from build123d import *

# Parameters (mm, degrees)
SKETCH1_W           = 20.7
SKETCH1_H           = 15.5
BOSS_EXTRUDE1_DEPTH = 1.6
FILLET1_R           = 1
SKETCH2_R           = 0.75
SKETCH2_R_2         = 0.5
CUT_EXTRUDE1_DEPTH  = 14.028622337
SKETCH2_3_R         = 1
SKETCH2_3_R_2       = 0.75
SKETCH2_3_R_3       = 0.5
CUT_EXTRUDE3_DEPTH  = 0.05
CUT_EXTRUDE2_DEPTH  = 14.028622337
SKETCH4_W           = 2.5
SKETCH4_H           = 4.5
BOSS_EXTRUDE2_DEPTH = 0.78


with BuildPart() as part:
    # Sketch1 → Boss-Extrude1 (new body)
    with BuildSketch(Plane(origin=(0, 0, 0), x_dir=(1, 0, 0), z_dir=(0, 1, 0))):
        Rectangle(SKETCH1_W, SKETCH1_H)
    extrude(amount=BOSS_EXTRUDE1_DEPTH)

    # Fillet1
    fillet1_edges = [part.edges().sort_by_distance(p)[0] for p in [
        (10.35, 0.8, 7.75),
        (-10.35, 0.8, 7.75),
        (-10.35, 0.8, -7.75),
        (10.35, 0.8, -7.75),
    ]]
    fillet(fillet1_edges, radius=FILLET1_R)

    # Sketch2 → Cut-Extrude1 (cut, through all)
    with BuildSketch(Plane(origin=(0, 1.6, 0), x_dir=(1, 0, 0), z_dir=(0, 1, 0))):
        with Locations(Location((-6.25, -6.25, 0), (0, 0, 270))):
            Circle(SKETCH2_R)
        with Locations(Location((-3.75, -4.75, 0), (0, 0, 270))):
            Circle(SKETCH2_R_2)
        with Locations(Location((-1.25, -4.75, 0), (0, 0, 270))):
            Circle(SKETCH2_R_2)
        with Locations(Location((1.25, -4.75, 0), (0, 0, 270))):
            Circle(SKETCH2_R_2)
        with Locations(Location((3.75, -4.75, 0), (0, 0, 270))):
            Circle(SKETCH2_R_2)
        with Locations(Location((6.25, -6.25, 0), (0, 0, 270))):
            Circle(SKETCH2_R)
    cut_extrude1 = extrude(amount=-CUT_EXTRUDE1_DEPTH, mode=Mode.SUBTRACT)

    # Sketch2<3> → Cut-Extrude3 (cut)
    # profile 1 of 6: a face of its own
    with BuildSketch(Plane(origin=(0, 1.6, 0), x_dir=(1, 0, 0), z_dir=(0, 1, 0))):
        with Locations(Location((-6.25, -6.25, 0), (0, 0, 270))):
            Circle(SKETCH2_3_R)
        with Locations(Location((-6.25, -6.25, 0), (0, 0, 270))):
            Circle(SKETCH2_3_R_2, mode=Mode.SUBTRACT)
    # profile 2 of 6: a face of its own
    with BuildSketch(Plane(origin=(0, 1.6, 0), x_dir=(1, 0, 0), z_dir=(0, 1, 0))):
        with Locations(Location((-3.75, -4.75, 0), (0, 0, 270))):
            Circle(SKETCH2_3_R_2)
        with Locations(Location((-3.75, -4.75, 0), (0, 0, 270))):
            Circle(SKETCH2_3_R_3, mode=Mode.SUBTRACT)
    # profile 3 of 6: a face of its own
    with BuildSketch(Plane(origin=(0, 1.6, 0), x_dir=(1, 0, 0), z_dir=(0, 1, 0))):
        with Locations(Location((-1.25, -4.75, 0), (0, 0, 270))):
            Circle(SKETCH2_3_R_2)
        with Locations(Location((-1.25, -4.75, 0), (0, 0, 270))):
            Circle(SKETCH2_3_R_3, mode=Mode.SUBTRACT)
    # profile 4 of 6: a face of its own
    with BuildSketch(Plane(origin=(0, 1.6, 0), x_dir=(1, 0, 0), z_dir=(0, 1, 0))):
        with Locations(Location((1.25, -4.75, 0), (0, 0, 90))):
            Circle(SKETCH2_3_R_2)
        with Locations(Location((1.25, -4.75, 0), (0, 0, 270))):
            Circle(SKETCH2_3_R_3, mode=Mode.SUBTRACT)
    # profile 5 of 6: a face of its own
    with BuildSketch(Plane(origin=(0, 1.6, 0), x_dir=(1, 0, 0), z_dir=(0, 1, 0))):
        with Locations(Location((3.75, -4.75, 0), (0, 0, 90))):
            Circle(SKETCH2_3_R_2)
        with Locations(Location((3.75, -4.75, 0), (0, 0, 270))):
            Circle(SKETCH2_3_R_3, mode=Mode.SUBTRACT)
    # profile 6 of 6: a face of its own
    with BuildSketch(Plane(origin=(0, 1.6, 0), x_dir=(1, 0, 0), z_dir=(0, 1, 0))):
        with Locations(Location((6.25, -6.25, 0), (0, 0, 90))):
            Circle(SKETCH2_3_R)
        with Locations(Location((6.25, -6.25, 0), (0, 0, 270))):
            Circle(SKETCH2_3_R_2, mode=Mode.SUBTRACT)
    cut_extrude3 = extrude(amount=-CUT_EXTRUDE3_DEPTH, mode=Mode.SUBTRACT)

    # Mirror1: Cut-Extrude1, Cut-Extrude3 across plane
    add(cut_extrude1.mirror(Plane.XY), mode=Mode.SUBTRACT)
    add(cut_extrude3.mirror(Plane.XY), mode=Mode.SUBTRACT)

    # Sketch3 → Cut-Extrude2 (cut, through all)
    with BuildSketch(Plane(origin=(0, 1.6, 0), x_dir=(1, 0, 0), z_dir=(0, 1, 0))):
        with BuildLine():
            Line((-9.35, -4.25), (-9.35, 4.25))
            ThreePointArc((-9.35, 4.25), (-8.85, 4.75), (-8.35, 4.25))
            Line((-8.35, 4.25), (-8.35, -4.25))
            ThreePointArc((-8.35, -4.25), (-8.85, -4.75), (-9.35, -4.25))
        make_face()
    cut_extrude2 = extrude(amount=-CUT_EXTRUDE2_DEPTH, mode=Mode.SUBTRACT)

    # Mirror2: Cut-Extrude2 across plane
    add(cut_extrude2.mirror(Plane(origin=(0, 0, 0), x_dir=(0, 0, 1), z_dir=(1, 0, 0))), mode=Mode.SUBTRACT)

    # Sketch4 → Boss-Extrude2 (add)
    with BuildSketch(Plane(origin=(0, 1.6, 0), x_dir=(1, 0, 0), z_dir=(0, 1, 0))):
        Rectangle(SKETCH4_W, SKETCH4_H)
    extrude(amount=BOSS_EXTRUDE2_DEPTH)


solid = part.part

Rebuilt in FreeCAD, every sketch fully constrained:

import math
import FreeCAD as App
import Part
import Sketcher


def edges_at(feature, points):
    """Names of the edges that pass closest to the given points."""
    edges = feature.Shape.Edges
    near = lambda p: min(range(len(edges)), key=lambda i: edges[i].distToShape(Part.Vertex(*p))[0])
    return sorted({f"Edge{near(p) + 1}" for p in points})


def add_polygon(sketch, points):
    """Adds a closed chain of lines whose ends are joined by coincident constraints."""
    first, n = sketch.GeometryCount, len(points)
    for a, b in zip(points, points[1:] + points[:1]):
        sketch.addGeometry(Part.LineSegment(App.Vector(*a, 0), App.Vector(*b, 0)), False)
    for i in range(n):
        sketch.addConstraint(Sketcher.Constraint("Coincident", first + i, 2, first + (i + 1) % n, 1))

doc = App.newDocument("Part")
body = doc.addObject("PartDesign::Body", "Body")

# Sketch on XZ plane
sketch1 = body.newObject("Sketcher::SketchObject", "Sketch")
sketch1.AttachmentSupport = (doc.getObject("XZ_Plane"), [""])
sketch1.MapMode = "FlatFace"
add_polygon(sketch1, [(-10, -8), (-10, 8), (10, 8), (10, -8)])  # lines 0-3
sketch1.addConstraint([
    Sketcher.Constraint("Vertical", 0),
    Sketcher.Constraint("Horizontal", 1),
    Sketcher.Constraint("Vertical", 2),
    Sketcher.Constraint("Horizontal", 3),
    Sketcher.Constraint("Symmetric", 0, 2, 2, 2, -1, 1),
    Sketcher.Constraint("DistanceX", 1, 1, 1, 2, 20.7),
    Sketcher.Constraint("DistanceY", 0, 1, 0, 2, 15.5),
])
pad1 = body.newObject("PartDesign::Pad", "Pad")
pad1.Profile = sketch1
pad1.Length = 1.6
pad1.Reversed = True
doc.recompute()

fillet = body.newObject("PartDesign::Fillet", "Fillet")
fillet.Base = (pad1, edges_at(pad1, [
    (10.35, 0.8, 7.75),
    (-10.35, 0.8, 7.75),
    (-10.35, 0.8, -7.75),
    (10.35, 0.8, -7.75),
]))
fillet.Radius = 1

# Sketch on XZ plane
sketch2 = body.newObject("Sketcher::SketchObject", "Sketch001")
sketch2.AttachmentSupport = (doc.getObject("XZ_Plane"), [""])
sketch2.MapMode = "FlatFace"
sketch2.AttachmentOffset = App.Placement(App.Vector(0, 0, -1.6), App.Rotation())
sketch2.addGeometry([
    Part.Circle(App.Vector(-6.2, 6.2, 0), App.Vector(0, 0, 1), 0.8),  # 0
    Part.Circle(App.Vector(-3.8, 4.8, 0), App.Vector(0, 0, 1), 0.5),  # 1
    Part.Circle(App.Vector(-1.2, 4.8, 0), App.Vector(0, 0, 1), 0.5),  # 2
    Part.Circle(App.Vector(1.2, 4.8, 0), App.Vector(0, 0, 1), 0.5),  # 3
    Part.Circle(App.Vector(3.8, 4.8, 0), App.Vector(0, 0, 1), 0.5),  # 4
    Part.Circle(App.Vector(6.2, 6.2, 0), App.Vector(0, 0, 1), 0.8),  # 5
], False)
sketch2.addConstraint([
    Sketcher.Constraint("Equal", 1, 2),
    Sketcher.Constraint("Equal", 2, 3),
    Sketcher.Constraint("Equal", 3, 4),
    Sketcher.Constraint("Equal", 0, 5),
    Sketcher.Constraint("Symmetric", 2, 3, 3, 3, -2),
    Sketcher.Constraint("Symmetric", 1, 3, 4, 3, -2),
    Sketcher.Constraint("Symmetric", 0, 3, 5, 3, -2),
    Sketcher.Constraint("Horizontal", 1, 3, 2, 3),
    Sketcher.Constraint("Diameter", 1, 1.0),
    Sketcher.Constraint("Diameter", 0, 1.5),
    Sketcher.Constraint("DistanceX", 0, 3, 2, 3, 5.0),
    Sketcher.Constraint("DistanceX", 1, 3, 3, 3, 5.0),
    Sketcher.Constraint("DistanceX", 0, 3, 1, 3, 2.5),
    Sketcher.Constraint("DistanceY", 1, 3, 0, 3, 1.5),
    Sketcher.Constraint("DistanceY", -1, 1, 0, 3, 6.25),
])
pocket1 = body.newObject("PartDesign::Pocket", "Pocket")
pocket1.Profile = sketch2
pocket1.Type = "ThroughAll"
pocket1.Reversed = True

# Sketch on XZ plane
sketch3 = body.newObject("Sketcher::SketchObject", "Sketch002")
sketch3.AttachmentSupport = (doc.getObject("XZ_Plane"), [""])
sketch3.MapMode = "FlatFace"
sketch3.AttachmentOffset = App.Placement(App.Vector(0, 0, -1.6), App.Rotation())
sketch3.addGeometry([
    Part.Circle(App.Vector(-6.2, 6.2, 0), App.Vector(0, 0, 1), 1),  # 0
    Part.Circle(App.Vector(-6.2, 6.2, 0), App.Vector(0, 0, 1), 0.8),  # 1
    Part.Circle(App.Vector(-3.8, 4.8, 0), App.Vector(0, 0, 1), 0.8),  # 2
    Part.Circle(App.Vector(-3.8, 4.8, 0), App.Vector(0, 0, 1), 0.5),  # 3
    Part.Circle(App.Vector(-1.2, 4.8, 0), App.Vector(0, 0, 1), 0.8),  # 4
    Part.Circle(App.Vector(-1.2, 4.8, 0), App.Vector(0, 0, 1), 0.5),  # 5
    Part.Circle(App.Vector(1.2, 4.8, 0), App.Vector(0, 0, 1), 0.8),  # 6
    Part.Circle(App.Vector(1.2, 4.8, 0), App.Vector(0, 0, 1), 0.5),  # 7
    Part.Circle(App.Vector(3.8, 4.8, 0), App.Vector(0, 0, 1), 0.8),  # 8
    Part.Circle(App.Vector(3.8, 4.8, 0), App.Vector(0, 0, 1), 0.5),  # 9
    Part.Circle(App.Vector(6.2, 6.2, 0), App.Vector(0, 0, 1), 1),  # 10
    Part.Circle(App.Vector(6.2, 6.2, 0), App.Vector(0, 0, 1), 0.8),  # 11
], False)
sketch3.addConstraint([
    Sketcher.Constraint("Coincident", 1, 3, 0, 3),
    Sketcher.Constraint("Coincident", 3, 3, 2, 3),
    Sketcher.Constraint("Coincident", 5, 3, 4, 3),
    Sketcher.Constraint("Coincident", 7, 3, 6, 3),
    Sketcher.Constraint("Coincident", 9, 3, 8, 3),
    Sketcher.Constraint("Coincident", 11, 3, 10, 3),
    Sketcher.Constraint("Equal", 1, 2),
    Sketcher.Constraint("Equal", 2, 4),
    Sketcher.Constraint("Equal", 3, 5),
    Sketcher.Constraint("Equal", 4, 6),
    Sketcher.Constraint("Equal", 5, 7),
    Sketcher.Constraint("Equal", 6, 8),
    Sketcher.Constraint("Equal", 7, 9),
    Sketcher.Constraint("Equal", 0, 10),
    Sketcher.Constraint("Equal", 8, 11),
    Sketcher.Constraint("Symmetric", 4, 3, 6, 3, -2),
    Sketcher.Constraint("Symmetric", 2, 3, 8, 3, -2),
    Sketcher.Constraint("Symmetric", 0, 3, 10, 3, -2),
    Sketcher.Constraint("Horizontal", 3, 3, 4, 3),
    Sketcher.Constraint("Diameter", 0, 2.0),
    Sketcher.Constraint("Diameter", 3, 1.0),
    Sketcher.Constraint("Diameter", 1, 1.5),
    Sketcher.Constraint("DistanceX", 0, 3, 4, 3, 5.0),
    Sketcher.Constraint("DistanceX", 2, 3, 6, 3, 5.0),
    Sketcher.Constraint("DistanceX", 0, 3, 2, 3, 2.5),
    Sketcher.Constraint("DistanceY", 2, 3, 0, 3, 1.5),
    Sketcher.Constraint("DistanceY", -1, 1, 0, 3, 6.25),
])
pocket2 = body.newObject("PartDesign::Pocket", "Pocket001")
pocket2.Profile = sketch3
pocket2.Length = 0.05
pocket2.Reversed = True
doc.recompute()

mirrored = body.newObject("PartDesign::Mirrored", "Mirrored")
mirrored.Originals = [pocket1, pocket2]
mirrored.MirrorPlane = (doc.getObject("XY_Plane"), [""])
body.Tip = mirrored

# Sketch on XZ plane
sketch4 = body.newObject("Sketcher::SketchObject", "Sketch003")
sketch4.AttachmentSupport = (doc.getObject("XZ_Plane"), [""])
sketch4.MapMode = "FlatFace"
sketch4.AttachmentOffset = App.Placement(App.Vector(0, 0, -1.6), App.Rotation())
sketch4.addGeometry([
    Part.LineSegment(App.Vector(-9.3, -4.2, 0), App.Vector(-9.3, 4.2, 0)),
    Part.ArcOfCircle(Part.Circle(App.Vector(-8.8, 4.2, 0), App.Vector(0, 0, 1), 0.5), math.radians(0), math.radians(180)),
    Part.LineSegment(App.Vector(-8.3, 4.2, 0), App.Vector(-8.3, -4.2, 0)),
    Part.ArcOfCircle(Part.Circle(App.Vector(-8.8, -4.2, 0), App.Vector(0, 0, 1), 0.5), math.radians(180), math.radians(360)),
], False)
sketch4.addConstraint([
    Sketcher.Constraint("Tangent", 0, 2, 1, 2),
    Sketcher.Constraint("Tangent", 1, 1, 2, 1),
    Sketcher.Constraint("Tangent", 2, 2, 3, 2),
    Sketcher.Constraint("Tangent", 3, 1, 0, 1),
    Sketcher.Constraint("Vertical", 0),
    Sketcher.Constraint("Vertical", 2),
    Sketcher.Constraint("Radius", 1, 0.5),
    Sketcher.Constraint("DistanceY", 0, 1, 0, 2, 8.5),
    Sketcher.Constraint("DistanceX", 1, 3, -1, 1, 8.85),
    Sketcher.Constraint("DistanceY", -1, 1, 1, 3, 4.25),
])
pocket3 = body.newObject("PartDesign::Pocket", "Pocket002")
pocket3.Profile = sketch4
pocket3.Type = "ThroughAll"
pocket3.Reversed = True
doc.recompute()

mirrored2 = body.newObject("PartDesign::Mirrored", "Mirrored001")
mirrored2.Originals = [pocket3]
mirrored2.MirrorPlane = (doc.getObject("YZ_Plane"), [""])
body.Tip = mirrored2

# Sketch on XZ plane
sketch5 = body.newObject("Sketcher::SketchObject", "Sketch004")
sketch5.AttachmentSupport = (doc.getObject("XZ_Plane"), [""])
sketch5.MapMode = "FlatFace"
sketch5.AttachmentOffset = App.Placement(App.Vector(0, 0, -1.6), App.Rotation())
add_polygon(sketch5, [(-1.2, -2.2), (-1.2, 2.2), (1.2, 2.2), (1.2, -2.2)])  # lines 0-3
sketch5.addConstraint([
    Sketcher.Constraint("Vertical", 0),
    Sketcher.Constraint("Horizontal", 1),
    Sketcher.Constraint("Vertical", 2),
    Sketcher.Constraint("Horizontal", 3),
    Sketcher.Constraint("Symmetric", 0, 2, 2, 2, -1, 1),
    Sketcher.Constraint("DistanceX", 1, 1, 1, 2, 2.5),
    Sketcher.Constraint("DistanceY", 0, 1, 0, 2, 4.5),
])
pad2 = body.newObject("PartDesign::Pad", "Pad001")
pad2.Profile = sketch5
pad2.Length = 0.78
pad2.Reversed = True

doc.recompute()
